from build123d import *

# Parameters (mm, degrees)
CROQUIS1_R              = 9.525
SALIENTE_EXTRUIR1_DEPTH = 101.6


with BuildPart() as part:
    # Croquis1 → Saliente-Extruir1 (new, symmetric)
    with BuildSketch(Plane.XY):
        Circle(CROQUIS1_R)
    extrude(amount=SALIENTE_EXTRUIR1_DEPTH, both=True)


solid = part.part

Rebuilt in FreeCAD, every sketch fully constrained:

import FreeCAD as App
import Part
import Sketcher
from FreeCAD import Vector
Q = App.Units.Quantity

doc = App.newDocument("Part")
body = doc.addObject("PartDesign::Body", "Body")

# Sketch on XY plane
sketch1 = body.newObject("Sketcher::SketchObject", "Sketch")
sketch1.AttachmentSupport = (doc.getObject("XY_Plane"), [""])
sketch1.MapMode = "FlatFace"
sketch1.addGeometry(Part.Circle(Vector(0, 0, 0), Vector(0, 0, 1), 9.525), False)
sketch1.addConstraint([
    Sketcher.Constraint("Coincident", 0, 3, -1, 1),
    Sketcher.Constraint("Diameter", 0, Q("0.75 in")),
])
pad1 = body.newObject("PartDesign::Pad", "Pad")
pad1.Profile = sketch1
pad1.Length = Q("8 in")
pad1.Midplane = True

doc.recompute()
